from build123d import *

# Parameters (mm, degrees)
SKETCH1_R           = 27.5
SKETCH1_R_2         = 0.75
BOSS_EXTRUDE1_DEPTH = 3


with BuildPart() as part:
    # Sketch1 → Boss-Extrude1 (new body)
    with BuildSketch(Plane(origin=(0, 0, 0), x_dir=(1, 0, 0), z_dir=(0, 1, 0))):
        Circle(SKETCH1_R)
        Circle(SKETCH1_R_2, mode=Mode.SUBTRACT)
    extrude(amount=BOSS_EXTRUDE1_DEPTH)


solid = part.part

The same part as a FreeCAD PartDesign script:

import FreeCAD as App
import Part
import Sketcher
Q = App.Units.Quantity

doc = App.newDocument("Part")
body = doc.addObject("PartDesign::Body", "Body")

sketch1 = body.newObject("Sketcher::SketchObject", "Sketch")
sketch1.AttachmentSupport = (doc.getObject("XZ_Plane"), [""])
sketch1.MapMode = "FlatFace"
sketch1.addGeometry([
    Part.Circle(App.Vector(0, 0, 0), App.Vector(0, 0, 1), 27.5),
    Part.Circle(App.Vector(0, 0, 0), App.Vector(0, 0, 1), 0.8),
], False)
sketch1.addConstraint([
    Sketcher.Constraint("Coincident", 0, 3, -1, 1),
    Sketcher.Constraint("Coincident", 1, 3, -1, 1),
    Sketcher.Constraint("Diameter", 0, Q("55 mm")),
    Sketcher.Constraint("Diameter", 1, Q("1.5 mm")),
])
pad1 = body.newObject("PartDesign::Pad", "Pad")
pad1.Profile = sketch1
pad1.Length = 3
pad1.Reversed = True

doc.recompute()
